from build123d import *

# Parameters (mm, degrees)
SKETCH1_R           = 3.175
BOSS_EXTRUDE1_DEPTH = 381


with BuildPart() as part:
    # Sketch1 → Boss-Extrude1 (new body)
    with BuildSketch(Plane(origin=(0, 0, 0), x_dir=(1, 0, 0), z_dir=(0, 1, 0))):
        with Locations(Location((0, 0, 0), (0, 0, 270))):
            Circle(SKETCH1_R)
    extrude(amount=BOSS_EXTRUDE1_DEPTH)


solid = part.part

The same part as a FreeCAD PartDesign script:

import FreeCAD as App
import Part
import Sketcher

V = App.Vector
Q = App.Units.Quantity

doc = App.newDocument("Part")
body = doc.addObject("PartDesign::Body", "Body")

sketch1 = body.newObject("Sketcher::SketchObject", "Sketch")
sketch1.AttachmentSupport = (doc.getObject("XZ_Plane"), [""])
sketch1.MapMode = "FlatFace"
sketch1.addGeometry(Part.Circle(V(0, 0, 0), V(0, 0, 1), 3.2), False)
sketch1.addConstraint([
    Sketcher.Constraint("Coincident", 0, 3, -1, 1),
    Sketcher.Constraint("Diameter", 0, Q("0.25 in")),
])
pad1 = body.newObject("PartDesign::Pad", "Pad")
pad1.Profile = sketch1
pad1.Length = Q("15 in")
pad1.Reversed = True

doc.recompute()
